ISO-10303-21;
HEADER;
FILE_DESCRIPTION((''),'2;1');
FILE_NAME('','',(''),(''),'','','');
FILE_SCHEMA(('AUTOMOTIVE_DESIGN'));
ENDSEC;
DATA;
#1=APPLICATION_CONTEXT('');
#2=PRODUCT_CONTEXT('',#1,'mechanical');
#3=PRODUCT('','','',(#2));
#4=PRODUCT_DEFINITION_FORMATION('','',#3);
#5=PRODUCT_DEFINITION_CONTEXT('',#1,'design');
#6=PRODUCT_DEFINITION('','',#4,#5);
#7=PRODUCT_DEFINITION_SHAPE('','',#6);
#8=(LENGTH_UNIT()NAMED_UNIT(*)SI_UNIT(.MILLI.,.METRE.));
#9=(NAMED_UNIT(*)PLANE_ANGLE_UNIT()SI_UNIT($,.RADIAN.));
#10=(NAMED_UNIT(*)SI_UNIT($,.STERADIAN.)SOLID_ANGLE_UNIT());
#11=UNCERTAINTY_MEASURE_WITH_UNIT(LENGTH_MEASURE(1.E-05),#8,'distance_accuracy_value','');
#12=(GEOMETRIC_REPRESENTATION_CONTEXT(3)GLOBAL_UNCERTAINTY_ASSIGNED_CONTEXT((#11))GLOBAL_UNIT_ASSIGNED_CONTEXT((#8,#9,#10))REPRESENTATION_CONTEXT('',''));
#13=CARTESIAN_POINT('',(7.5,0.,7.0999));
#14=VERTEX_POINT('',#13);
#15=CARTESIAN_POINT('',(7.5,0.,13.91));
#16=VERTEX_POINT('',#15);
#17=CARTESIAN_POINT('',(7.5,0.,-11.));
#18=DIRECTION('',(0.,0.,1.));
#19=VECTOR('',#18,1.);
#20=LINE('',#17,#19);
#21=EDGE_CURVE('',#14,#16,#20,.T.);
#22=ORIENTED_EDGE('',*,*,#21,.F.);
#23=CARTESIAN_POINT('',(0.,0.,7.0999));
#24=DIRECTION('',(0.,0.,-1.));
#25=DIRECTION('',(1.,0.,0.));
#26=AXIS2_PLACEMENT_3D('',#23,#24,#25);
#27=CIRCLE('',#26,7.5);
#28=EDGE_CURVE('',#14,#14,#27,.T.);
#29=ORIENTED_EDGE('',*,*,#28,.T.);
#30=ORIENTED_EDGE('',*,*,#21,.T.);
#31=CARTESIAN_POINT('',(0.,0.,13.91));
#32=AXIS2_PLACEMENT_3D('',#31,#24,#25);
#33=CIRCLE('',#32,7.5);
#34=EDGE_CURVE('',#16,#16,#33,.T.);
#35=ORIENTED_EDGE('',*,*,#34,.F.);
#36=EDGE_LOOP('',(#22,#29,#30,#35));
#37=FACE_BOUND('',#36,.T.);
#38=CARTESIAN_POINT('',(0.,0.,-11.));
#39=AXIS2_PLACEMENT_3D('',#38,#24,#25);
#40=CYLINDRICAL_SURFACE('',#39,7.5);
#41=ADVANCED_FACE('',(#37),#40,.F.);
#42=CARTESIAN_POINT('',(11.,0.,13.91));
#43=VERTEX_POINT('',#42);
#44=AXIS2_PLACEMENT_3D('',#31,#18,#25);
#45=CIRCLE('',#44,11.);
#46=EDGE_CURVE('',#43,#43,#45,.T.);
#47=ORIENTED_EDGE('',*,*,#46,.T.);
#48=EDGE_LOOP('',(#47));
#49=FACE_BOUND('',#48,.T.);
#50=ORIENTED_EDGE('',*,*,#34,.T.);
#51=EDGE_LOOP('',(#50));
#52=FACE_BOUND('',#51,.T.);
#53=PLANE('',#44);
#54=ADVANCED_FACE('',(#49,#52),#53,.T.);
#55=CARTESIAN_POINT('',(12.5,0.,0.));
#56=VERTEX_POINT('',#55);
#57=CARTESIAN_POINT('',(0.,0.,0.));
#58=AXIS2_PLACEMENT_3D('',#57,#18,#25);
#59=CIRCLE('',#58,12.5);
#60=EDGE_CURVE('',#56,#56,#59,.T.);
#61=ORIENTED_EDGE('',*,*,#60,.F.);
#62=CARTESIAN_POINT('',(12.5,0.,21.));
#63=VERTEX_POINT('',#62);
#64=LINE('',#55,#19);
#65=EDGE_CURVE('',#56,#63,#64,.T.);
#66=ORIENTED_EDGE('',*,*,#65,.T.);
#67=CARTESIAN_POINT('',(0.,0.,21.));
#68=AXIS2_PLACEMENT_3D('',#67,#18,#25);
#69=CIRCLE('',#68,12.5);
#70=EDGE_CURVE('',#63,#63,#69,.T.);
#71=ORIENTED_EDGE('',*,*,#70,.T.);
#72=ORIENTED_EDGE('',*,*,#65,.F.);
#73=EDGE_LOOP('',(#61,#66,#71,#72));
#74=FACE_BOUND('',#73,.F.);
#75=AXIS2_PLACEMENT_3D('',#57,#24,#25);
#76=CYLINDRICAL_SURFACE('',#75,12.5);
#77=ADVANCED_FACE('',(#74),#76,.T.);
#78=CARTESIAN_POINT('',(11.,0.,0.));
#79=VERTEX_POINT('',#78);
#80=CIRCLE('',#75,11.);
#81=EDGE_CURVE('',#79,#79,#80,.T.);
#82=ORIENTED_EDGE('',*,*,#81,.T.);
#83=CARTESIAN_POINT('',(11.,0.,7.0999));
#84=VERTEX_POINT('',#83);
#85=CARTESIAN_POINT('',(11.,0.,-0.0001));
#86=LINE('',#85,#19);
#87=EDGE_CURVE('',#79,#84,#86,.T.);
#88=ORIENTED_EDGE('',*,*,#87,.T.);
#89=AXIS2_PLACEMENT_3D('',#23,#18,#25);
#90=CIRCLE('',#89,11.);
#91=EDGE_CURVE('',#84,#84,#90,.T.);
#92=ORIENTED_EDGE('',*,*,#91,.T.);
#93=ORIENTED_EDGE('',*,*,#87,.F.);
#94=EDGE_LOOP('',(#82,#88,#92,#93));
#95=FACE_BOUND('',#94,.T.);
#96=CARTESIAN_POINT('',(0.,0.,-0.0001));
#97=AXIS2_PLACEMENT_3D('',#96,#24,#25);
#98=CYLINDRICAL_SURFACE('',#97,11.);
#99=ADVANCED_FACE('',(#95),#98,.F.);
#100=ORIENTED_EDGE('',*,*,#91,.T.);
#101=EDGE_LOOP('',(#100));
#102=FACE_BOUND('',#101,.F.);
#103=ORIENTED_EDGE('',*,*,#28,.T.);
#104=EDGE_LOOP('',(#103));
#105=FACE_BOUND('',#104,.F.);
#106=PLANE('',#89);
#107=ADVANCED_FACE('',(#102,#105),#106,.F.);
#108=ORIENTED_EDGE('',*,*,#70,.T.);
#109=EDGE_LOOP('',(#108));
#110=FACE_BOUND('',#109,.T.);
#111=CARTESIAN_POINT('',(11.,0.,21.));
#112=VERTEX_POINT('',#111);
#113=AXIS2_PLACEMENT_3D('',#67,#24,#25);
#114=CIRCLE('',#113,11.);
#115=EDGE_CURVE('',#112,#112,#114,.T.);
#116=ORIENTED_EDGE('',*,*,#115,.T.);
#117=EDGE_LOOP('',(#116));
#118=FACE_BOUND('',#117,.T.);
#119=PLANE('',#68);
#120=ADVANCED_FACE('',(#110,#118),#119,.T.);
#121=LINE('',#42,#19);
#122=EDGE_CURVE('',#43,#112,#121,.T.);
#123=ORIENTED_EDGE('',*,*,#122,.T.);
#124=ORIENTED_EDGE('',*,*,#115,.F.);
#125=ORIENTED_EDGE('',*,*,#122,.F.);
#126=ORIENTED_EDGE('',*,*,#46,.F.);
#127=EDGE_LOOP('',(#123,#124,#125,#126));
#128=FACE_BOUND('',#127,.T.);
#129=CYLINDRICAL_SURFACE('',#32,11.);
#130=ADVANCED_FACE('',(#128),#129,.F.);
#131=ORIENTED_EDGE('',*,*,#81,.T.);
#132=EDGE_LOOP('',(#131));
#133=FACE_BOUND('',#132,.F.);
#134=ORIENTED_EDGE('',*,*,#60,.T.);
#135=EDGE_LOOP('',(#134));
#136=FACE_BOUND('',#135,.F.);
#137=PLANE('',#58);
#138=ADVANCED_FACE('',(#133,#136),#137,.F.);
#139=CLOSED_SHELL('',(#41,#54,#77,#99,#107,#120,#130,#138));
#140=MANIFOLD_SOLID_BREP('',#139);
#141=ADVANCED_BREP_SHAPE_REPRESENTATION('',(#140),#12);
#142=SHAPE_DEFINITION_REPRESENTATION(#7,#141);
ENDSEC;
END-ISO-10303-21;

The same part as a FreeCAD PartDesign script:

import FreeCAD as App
import Part
import Sketcher
from FreeCAD import Vector
Q = App.Units.Quantity

doc = App.newDocument("Part")
body = doc.addObject("PartDesign::Body", "Body")

sketch1 = doc.addObject("Sketcher::SketchObject", "Sketch")
body.addObject(sketch1)
sketch1.AttachmentSupport = (doc.XY_Plane, [""])
sketch1.MapMode = "FlatFace"
sketch1.AttachmentOffset = App.Placement(Vector(0, 0, 13.91), App.Rotation())
sketch1.addGeometry(Part.Circle(Vector(0, 0, 0), Vector(0, 0, 1), 11), False)
sketch1.addConstraint(Sketcher.Constraint("Coincident", 0, 3, -1, 1))
sketch1.addConstraint(Sketcher.Constraint("Diameter", 0, Q("22 mm")))
pad1 = doc.addObject("PartDesign::Pad", "Pad")
body.addObject(pad1)
pad1.Profile = sketch1
pad1.Length = 7.1
body2 = doc.addObject("PartDesign::Body", "Body001")

sketch2 = doc.addObject("Sketcher::SketchObject", "Sketch001")
body2.addObject(sketch2)
sketch2.AttachmentSupport = (doc.getObject("XY_Plane001"), [""])
sketch2.MapMode = "FlatFace"
sketch2.AttachmentOffset = App.Placement(Vector(0, 0, -0.0001), App.Rotation())
sketch2.addGeometry(Part.Circle(Vector(0, 0, 0), Vector(0, 0, 1), 11), False)
sketch2.addConstraint(Sketcher.Constraint("Coincident", 0, 3, -1, 1))
sketch2.addConstraint(Sketcher.Constraint("Diameter", 0, Q("22 mm")))
pad2 = doc.addObject("PartDesign::Pad", "Pad001")
body2.addObject(pad2)
pad2.Profile = sketch2
pad2.Length = 7.1
body3 = doc.addObject("PartDesign::Body", "Body002")

sketch3 = doc.addObject("Sketcher::SketchObject", "Sketch002")
body3.addObject(sketch3)
sketch3.AttachmentSupport = (doc.getObject("XY_Plane002"), [""])
sketch3.MapMode = "FlatFace"
sketch3.AttachmentOffset = App.Placement(Vector(0, 0, -11), App.Rotation())
sketch3.addGeometry(Part.Circle(Vector(0, 0, 0), Vector(0, 0, 1), 7.5), False)
sketch3.addConstraint(Sketcher.Constraint("Coincident", 0, 3, -1, 1))
sketch3.addConstraint(Sketcher.Constraint("Diameter", 0, Q("15 mm")))
pad3 = doc.addObject("PartDesign::Pad", "Pad002")
body3.addObject(pad3)
pad3.Profile = sketch3
pad3.Length = 50
body4 = doc.addObject("PartDesign::Body", "Body003")

sketch4 = doc.addObject("Sketcher::SketchObject", "Sketch003")
body4.addObject(sketch4)
sketch4.AttachmentSupport = (doc.getObject("XY_Plane003"), [""])
sketch4.MapMode = "FlatFace"
sketch4.addGeometry(Part.Circle(Vector(0, 0, 0), Vector(0, 0, 1), 12.5), False)
sketch4.addConstraint(Sketcher.Constraint("Coincident", 0, 3, -1, 1))
sketch4.addConstraint(Sketcher.Constraint("Diameter", 0, Q("25 mm")))
pad4 = doc.addObject("PartDesign::Pad", "Pad003")
body4.addObject(pad4)
pad4.Profile = sketch4
pad4.Length = 21
doc.recompute()

boolean = doc.addObject("PartDesign::Boolean", "Boolean")
body4.addObject(boolean)
boolean.Type = "Cut"
boolean.addObjects([body3])
doc.recompute()

boolean2 = doc.addObject("PartDesign::Boolean", "Boolean001")
body4.addObject(boolean2)
boolean2.Type = "Cut"
boolean2.addObjects([body2])
doc.recompute()

boolean3 = doc.addObject("PartDesign::Boolean", "Boolean002")
body4.addObject(boolean3)
boolean3.Type = "Cut"
boolean3.addObjects([body])

doc.recompute()
